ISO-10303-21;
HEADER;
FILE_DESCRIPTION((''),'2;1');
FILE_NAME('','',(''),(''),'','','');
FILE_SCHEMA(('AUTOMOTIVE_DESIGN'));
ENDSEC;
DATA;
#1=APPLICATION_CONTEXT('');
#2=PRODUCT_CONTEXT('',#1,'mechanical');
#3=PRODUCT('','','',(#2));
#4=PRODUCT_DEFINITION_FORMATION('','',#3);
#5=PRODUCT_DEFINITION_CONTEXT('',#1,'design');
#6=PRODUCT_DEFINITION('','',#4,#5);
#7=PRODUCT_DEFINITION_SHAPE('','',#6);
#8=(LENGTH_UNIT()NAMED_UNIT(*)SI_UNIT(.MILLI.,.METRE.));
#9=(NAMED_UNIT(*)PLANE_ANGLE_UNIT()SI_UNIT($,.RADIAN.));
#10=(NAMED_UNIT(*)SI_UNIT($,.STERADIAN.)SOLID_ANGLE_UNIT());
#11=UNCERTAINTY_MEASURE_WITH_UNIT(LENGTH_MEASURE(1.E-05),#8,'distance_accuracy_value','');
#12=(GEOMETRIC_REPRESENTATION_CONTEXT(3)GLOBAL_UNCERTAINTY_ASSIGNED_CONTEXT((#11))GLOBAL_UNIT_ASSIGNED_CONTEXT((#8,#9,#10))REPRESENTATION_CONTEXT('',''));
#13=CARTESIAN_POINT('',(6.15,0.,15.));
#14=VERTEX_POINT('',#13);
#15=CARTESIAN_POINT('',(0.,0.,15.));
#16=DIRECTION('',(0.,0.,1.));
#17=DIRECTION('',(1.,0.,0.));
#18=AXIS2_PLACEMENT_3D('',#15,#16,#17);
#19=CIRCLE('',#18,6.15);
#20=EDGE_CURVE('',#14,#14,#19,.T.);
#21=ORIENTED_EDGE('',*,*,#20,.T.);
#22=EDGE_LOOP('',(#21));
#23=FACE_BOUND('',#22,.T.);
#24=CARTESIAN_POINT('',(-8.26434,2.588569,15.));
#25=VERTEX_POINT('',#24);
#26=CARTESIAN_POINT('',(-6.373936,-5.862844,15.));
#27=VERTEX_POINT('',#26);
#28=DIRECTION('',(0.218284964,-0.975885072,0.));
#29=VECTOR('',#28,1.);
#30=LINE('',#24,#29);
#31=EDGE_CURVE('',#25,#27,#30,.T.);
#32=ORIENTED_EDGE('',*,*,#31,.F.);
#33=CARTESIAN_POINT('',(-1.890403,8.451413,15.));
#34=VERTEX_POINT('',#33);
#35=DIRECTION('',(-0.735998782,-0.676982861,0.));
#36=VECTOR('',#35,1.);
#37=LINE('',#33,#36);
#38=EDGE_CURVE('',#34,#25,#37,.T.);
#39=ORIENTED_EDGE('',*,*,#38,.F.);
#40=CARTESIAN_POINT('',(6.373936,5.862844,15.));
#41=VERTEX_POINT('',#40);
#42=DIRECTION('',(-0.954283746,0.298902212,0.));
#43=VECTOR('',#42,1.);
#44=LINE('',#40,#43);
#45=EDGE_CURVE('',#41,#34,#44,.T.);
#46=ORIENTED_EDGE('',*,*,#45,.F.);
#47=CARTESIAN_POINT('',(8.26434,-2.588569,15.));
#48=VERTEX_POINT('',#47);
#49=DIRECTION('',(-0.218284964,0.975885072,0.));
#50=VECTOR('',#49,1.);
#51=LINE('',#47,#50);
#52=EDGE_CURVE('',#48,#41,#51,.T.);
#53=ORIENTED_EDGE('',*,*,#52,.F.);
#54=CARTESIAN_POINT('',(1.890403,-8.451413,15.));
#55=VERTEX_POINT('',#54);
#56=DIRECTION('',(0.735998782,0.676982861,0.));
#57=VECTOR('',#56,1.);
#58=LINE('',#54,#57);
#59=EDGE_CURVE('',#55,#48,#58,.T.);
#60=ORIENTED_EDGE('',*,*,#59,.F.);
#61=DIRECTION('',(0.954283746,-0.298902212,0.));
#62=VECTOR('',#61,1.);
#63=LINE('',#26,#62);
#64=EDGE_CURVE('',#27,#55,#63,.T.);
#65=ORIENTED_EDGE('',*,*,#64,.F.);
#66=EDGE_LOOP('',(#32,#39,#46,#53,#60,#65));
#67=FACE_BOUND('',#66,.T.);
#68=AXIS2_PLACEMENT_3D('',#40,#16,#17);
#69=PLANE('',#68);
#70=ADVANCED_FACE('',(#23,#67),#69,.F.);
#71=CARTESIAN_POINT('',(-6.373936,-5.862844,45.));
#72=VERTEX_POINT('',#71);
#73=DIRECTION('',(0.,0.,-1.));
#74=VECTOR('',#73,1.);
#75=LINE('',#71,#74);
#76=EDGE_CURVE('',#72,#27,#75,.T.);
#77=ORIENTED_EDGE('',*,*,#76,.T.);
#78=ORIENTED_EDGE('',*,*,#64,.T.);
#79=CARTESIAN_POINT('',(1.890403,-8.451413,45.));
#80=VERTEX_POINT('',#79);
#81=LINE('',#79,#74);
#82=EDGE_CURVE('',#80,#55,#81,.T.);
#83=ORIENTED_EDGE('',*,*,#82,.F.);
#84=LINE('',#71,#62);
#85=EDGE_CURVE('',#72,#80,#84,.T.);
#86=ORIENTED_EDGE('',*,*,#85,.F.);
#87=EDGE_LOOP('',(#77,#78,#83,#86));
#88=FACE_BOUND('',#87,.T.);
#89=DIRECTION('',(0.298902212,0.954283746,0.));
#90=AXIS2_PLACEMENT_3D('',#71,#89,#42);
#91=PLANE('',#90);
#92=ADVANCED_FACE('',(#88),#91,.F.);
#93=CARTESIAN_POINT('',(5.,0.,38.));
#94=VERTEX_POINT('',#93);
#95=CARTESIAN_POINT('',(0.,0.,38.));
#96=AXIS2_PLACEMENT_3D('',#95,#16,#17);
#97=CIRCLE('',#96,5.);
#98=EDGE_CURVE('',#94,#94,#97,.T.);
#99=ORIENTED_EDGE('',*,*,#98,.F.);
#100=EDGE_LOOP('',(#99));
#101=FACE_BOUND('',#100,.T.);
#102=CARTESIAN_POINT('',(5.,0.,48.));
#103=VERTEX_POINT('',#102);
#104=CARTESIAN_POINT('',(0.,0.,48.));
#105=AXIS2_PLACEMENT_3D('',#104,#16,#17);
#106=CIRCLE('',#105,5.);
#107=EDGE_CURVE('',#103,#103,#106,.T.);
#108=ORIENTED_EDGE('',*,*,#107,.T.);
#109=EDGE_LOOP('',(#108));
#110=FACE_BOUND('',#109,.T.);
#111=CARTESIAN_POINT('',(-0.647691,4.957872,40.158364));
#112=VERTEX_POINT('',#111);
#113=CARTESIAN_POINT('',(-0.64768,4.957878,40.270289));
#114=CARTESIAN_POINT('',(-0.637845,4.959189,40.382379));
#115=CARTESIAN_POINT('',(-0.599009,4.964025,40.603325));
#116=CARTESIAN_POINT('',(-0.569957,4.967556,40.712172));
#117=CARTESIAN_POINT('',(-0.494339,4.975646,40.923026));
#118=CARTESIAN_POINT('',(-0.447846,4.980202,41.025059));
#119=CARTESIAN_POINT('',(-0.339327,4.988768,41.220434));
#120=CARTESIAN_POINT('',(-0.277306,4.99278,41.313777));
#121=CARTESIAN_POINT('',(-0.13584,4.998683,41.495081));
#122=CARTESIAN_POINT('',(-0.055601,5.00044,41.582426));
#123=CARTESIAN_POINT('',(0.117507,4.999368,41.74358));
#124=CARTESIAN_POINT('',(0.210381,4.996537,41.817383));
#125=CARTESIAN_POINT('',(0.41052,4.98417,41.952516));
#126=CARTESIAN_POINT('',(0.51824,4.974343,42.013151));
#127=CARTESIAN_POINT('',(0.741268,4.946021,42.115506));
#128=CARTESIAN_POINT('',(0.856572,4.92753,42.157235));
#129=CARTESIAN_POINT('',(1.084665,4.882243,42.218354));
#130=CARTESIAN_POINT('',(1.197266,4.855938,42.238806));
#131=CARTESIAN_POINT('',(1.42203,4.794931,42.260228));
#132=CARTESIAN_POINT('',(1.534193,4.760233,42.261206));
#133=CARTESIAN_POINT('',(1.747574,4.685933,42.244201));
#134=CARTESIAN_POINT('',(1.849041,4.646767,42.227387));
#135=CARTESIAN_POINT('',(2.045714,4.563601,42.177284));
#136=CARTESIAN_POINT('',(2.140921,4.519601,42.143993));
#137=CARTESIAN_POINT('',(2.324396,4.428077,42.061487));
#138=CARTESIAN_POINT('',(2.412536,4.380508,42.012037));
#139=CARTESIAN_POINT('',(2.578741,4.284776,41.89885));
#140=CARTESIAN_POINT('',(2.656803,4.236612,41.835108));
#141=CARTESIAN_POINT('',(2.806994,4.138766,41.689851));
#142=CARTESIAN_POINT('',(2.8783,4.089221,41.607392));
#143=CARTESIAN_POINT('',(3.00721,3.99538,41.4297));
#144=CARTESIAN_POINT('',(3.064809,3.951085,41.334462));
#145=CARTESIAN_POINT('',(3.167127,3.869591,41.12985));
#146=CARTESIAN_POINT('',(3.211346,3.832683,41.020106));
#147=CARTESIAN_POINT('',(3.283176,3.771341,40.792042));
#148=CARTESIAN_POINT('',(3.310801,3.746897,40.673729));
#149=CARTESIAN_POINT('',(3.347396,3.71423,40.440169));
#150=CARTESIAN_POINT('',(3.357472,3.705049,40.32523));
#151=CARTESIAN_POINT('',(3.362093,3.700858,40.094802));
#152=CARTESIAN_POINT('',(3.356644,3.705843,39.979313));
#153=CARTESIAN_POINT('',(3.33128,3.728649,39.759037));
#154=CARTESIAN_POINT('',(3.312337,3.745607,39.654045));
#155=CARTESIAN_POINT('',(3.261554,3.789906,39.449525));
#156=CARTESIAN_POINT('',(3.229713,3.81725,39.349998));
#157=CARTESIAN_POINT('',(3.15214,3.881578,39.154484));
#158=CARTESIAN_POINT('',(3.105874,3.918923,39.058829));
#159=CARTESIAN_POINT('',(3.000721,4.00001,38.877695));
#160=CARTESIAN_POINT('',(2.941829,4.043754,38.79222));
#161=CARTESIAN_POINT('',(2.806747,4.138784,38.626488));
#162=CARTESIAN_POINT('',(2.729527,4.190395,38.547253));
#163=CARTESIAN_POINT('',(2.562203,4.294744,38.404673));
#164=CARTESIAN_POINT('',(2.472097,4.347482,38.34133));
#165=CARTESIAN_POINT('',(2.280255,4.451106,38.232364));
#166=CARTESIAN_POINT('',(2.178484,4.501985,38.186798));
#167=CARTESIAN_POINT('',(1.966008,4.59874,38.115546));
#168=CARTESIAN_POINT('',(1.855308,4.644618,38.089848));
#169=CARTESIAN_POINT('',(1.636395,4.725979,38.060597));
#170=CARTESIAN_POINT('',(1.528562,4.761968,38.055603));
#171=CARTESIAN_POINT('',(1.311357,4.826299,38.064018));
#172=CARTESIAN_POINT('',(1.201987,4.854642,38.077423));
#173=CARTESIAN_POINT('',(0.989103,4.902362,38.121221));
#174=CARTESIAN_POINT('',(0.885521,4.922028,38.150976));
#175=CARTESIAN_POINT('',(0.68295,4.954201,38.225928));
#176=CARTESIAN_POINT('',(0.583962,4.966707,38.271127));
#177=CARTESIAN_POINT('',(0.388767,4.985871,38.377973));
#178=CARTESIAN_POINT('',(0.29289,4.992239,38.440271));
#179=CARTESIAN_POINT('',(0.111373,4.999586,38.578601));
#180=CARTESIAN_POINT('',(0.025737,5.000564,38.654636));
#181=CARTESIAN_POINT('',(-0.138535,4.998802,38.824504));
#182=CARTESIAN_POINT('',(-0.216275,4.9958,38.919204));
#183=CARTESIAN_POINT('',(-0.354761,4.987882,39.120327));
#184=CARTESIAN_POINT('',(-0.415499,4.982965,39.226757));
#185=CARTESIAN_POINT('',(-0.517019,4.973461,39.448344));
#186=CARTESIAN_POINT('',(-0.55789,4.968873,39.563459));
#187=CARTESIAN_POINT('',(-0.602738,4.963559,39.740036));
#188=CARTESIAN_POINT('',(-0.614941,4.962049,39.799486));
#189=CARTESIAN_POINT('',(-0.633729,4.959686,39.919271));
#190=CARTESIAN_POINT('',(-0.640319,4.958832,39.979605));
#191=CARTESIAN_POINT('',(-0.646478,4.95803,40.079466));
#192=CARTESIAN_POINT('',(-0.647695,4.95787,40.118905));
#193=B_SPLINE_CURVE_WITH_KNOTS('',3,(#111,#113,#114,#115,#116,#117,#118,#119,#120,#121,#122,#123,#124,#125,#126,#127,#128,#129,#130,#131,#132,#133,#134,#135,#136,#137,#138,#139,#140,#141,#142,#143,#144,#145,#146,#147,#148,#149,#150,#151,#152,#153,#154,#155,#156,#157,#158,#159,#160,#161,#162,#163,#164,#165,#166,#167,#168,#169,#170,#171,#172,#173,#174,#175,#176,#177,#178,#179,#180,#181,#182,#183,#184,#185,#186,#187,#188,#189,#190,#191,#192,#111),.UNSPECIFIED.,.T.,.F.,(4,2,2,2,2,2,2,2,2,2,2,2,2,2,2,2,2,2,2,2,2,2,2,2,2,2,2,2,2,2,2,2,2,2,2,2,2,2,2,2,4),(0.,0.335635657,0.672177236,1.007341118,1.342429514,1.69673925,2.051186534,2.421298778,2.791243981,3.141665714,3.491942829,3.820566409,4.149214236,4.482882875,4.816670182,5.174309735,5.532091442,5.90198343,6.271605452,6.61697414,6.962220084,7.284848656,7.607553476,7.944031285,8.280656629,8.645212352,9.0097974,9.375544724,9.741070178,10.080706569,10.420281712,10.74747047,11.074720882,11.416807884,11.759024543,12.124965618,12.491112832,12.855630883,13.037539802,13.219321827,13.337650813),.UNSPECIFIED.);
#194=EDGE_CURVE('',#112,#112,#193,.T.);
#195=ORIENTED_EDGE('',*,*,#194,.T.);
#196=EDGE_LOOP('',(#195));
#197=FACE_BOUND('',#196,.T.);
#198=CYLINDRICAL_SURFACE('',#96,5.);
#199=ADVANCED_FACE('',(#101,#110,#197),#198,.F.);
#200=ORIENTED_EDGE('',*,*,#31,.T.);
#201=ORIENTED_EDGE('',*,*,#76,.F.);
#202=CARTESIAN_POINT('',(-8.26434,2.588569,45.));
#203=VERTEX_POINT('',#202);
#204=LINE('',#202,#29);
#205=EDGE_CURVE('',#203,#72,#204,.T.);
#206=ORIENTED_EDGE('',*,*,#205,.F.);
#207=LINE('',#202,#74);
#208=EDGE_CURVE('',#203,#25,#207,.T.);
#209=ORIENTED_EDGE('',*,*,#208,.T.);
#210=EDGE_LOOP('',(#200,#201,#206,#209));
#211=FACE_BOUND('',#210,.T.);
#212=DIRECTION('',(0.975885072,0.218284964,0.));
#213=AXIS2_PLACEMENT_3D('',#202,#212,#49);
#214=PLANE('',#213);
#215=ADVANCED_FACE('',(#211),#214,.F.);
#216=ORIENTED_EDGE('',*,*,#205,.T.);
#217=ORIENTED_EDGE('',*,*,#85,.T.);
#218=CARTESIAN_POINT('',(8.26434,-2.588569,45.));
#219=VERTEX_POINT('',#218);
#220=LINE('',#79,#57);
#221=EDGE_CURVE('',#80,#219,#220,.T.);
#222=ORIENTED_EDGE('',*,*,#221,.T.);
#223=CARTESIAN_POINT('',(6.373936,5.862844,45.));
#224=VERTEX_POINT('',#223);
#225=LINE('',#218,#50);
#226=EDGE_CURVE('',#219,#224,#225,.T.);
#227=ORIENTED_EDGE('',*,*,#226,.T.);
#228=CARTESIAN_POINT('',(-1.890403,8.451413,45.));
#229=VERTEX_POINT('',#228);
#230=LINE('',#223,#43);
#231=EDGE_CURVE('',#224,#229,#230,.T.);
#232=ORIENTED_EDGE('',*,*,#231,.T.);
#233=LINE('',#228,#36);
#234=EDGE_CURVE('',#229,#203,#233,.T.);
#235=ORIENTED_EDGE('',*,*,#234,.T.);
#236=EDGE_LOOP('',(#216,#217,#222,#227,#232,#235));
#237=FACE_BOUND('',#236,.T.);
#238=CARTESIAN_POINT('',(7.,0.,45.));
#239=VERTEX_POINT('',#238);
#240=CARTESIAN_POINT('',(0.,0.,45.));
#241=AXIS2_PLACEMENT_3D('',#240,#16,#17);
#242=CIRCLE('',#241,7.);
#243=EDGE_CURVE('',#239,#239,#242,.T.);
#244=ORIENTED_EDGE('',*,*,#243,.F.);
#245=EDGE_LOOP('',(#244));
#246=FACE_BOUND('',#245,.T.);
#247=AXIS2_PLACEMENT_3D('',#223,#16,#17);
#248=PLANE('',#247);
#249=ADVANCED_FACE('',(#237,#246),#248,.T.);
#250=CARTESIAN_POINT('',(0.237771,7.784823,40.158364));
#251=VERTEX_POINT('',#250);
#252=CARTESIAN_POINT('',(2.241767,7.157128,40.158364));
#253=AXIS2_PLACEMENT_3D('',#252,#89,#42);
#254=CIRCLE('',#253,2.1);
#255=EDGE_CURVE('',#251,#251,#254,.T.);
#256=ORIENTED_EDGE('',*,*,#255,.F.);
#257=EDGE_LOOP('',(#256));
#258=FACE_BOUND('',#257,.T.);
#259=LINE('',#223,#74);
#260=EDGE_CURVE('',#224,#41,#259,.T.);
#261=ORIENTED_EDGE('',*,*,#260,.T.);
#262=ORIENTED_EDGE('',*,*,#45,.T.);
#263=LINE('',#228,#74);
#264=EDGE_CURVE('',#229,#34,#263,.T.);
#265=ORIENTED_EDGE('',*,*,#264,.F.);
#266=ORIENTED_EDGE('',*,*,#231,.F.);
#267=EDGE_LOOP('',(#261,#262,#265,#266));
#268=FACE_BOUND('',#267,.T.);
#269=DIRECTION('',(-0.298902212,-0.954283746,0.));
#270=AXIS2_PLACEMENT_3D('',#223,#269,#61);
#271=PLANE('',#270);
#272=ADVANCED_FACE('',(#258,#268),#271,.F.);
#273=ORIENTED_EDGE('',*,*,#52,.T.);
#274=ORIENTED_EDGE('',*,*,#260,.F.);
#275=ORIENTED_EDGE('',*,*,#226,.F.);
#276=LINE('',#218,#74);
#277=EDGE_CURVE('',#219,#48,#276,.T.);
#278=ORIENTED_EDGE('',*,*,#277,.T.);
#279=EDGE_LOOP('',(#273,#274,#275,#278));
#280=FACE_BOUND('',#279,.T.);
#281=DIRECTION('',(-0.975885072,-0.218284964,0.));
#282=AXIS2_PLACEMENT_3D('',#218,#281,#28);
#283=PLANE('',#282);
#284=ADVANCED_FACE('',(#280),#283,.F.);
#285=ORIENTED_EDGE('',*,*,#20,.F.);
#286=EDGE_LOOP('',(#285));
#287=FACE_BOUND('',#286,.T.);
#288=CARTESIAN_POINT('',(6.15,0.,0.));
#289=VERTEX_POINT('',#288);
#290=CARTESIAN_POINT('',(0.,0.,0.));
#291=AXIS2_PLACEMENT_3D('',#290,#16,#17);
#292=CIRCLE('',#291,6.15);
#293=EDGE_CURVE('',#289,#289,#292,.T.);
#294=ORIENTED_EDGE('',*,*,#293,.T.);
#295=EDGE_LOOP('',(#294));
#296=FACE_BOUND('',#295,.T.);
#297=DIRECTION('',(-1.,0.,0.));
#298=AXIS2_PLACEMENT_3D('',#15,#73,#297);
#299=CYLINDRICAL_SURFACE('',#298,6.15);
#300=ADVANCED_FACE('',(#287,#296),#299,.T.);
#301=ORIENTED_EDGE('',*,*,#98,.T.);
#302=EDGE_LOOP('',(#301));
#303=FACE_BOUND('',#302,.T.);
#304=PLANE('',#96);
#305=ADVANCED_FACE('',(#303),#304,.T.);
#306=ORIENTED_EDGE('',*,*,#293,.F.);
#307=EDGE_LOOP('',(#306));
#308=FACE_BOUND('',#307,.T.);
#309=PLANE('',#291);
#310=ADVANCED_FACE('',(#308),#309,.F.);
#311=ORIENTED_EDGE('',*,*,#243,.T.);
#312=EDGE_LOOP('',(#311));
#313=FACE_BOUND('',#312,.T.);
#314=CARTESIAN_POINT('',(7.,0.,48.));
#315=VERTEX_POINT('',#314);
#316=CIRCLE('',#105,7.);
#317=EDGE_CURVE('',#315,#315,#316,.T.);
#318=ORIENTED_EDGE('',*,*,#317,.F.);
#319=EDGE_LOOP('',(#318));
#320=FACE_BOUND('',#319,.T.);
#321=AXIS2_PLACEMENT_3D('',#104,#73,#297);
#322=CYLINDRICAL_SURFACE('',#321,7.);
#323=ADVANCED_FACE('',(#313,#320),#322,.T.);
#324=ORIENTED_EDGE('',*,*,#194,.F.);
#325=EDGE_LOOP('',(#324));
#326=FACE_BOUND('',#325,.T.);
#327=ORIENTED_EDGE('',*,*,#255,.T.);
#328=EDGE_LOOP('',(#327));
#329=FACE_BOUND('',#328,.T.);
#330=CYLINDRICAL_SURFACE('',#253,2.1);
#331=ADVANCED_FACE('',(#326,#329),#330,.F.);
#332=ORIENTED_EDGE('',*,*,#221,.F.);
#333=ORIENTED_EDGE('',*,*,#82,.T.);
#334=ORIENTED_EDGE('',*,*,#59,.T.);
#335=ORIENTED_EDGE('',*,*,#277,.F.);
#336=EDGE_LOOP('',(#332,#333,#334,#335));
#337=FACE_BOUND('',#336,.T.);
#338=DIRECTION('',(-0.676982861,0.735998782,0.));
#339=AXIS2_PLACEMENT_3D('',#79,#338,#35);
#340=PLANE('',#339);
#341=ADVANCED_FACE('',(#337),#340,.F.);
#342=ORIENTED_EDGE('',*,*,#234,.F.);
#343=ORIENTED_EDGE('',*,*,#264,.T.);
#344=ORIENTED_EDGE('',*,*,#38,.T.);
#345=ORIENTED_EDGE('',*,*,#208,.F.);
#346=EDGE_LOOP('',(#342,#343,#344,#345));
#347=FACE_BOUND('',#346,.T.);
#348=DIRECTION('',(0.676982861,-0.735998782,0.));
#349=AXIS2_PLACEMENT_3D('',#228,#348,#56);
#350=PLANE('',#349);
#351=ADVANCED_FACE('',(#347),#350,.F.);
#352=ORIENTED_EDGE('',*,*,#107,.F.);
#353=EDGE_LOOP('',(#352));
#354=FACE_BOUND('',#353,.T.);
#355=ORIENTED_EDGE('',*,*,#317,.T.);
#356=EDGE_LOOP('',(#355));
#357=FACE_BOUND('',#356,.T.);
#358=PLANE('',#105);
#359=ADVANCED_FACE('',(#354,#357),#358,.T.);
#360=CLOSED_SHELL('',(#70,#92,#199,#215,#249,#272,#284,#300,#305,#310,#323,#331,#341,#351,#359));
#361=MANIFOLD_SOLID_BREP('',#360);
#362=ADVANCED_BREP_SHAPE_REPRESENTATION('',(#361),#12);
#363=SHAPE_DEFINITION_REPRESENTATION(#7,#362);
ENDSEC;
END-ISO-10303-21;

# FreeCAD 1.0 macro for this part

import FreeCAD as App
import Part
import Sketcher
from FreeCAD import Vector


def add_polygon(sketch, points):
    """Adds a closed chain of lines whose ends are joined by coincident constraints."""
    first, n = sketch.GeometryCount, len(points)
    for a, b in zip(points, points[1:] + points[:1]):
        sketch.addGeometry(Part.LineSegment(App.Vector(*a, 0), App.Vector(*b, 0)), False)
    for i in range(n):
        sketch.addConstraint(Sketcher.Constraint("Coincident", first + i, 2, first + (i + 1) % n, 1))

doc = App.newDocument("Part")
body = doc.addObject("PartDesign::Body", "Body")

sketch1 = doc.addObject("Sketcher::SketchObject", "Sketch")
body.addObject(sketch1)
sketch1.AttachmentSupport = (doc.XY_Plane, [""])
sketch1.MapMode = "FlatFace"
sketch1.addGeometry(Part.Circle(Vector(0, 0, 0), Vector(0, 0, 1), 6), False)
sketch1.addConstraint(Sketcher.Constraint("Coincident", 0, 3, -1, 1))
sketch1.addConstraint(Sketcher.Constraint("Diameter", 0, 12.3))
pad1 = doc.addObject("PartDesign::Pad", "Pad")
body.addObject(pad1)
pad1.Profile = sketch1
pad1.Length = 15

sketch2 = doc.addObject("Sketcher::SketchObject", "Sketch001")
body.addObject(sketch2)
sketch2.AttachmentSupport = (doc.XY_Plane, [""])
sketch2.MapMode = "FlatFace"
sketch2.AttachmentOffset = App.Placement(Vector(0, 0, 15), App.Rotation())
add_polygon(sketch2, [(6, 6), (-2, 8), (-8, 3), (-6, -6), (2, -8), (8, -3)])
sketch2.addConstraint(Sketcher.Constraint("Symmetric", 0, 2, 3, 2, -1, 1))
sketch2.addConstraint(Sketcher.Constraint("Symmetric", 1, 2, 4, 2, -1, 1))
sketch2.addConstraint(Sketcher.Constraint("Symmetric", 2, 2, 5, 2, -1, 1))
sketch2.addConstraint(Sketcher.Constraint("Equal", 0, 1))
sketch2.addConstraint(Sketcher.Constraint("Equal", 1, 2))
sketch2.addConstraint(Sketcher.Constraint("DistanceX", 1, 2, -1, 1, 8.26434))
sketch2.addConstraint(Sketcher.Constraint("DistanceY", -1, 1, 1, 2, 2.588569))
sketch2.addConstraint(Sketcher.Constraint("DistanceX", 2, 2, 3, 2, 8.26434))
sketch2.addConstraint(Sketcher.Constraint("DistanceY", 3, 2, 2, 2, 2.588569))
pad2 = doc.addObject("PartDesign::Pad", "Pad001")
body.addObject(pad2)
pad2.Profile = sketch2
pad2.Length = 30

sketch3 = doc.addObject("Sketcher::SketchObject", "Sketch002")
body.addObject(sketch3)
sketch3.AttachmentSupport = (doc.XY_Plane, [""])
sketch3.MapMode = "FlatFace"
sketch3.AttachmentOffset = App.Placement(Vector(0, 0, 45), App.Rotation())
sketch3.addGeometry(Part.Circle(Vector(0, 0, 0), Vector(0, 0, 1), 7), False)
sketch3.addConstraint(Sketcher.Constraint("Coincident", 0, 3, -1, 1))
sketch3.addConstraint(Sketcher.Constraint("Diameter", 0, 14.0))
pad3 = doc.addObject("PartDesign::Pad", "Pad002")
body.addObject(pad3)
pad3.Profile = sketch3
pad3.Length = 3

sketch4 = doc.addObject("Sketcher::SketchObject", "Sketch003")
body.addObject(sketch4)
sketch4.AttachmentSupport = (doc.XY_Plane, [""])
sketch4.MapMode = "FlatFace"
sketch4.AttachmentOffset = App.Placement(Vector(0, 0, 48), App.Rotation())
sketch4.addGeometry(Part.Circle(Vector(0, 0, 0), Vector(0, 0, 1), 5), False)
sketch4.addConstraint(Sketcher.Constraint("Coincident", 0, 3, -1, 1))
sketch4.addConstraint(Sketcher.Constraint("Diameter", 0, 10.0))
pocket1 = doc.addObject("PartDesign::Pocket", "Pocket")
body.addObject(pocket1)
pocket1.Profile = sketch4
pocket1.Length = 10

sketch5 = doc.addObject("Sketcher::SketchObject", "Sketch004")
body.addObject(sketch5)
sketch5.Placement = App.Placement(Vector(2.241767, 7.157128, 0), App.Rotation(Vector(-0.954283746, 0.298902212, 0), Vector(0, 0, 1), Vector(0.298902212, 0.954283746, 0), "ZXY"))
sketch5.addGeometry(Part.Circle(Vector(0, 40.2, 0), Vector(0, 0, 1), 2.1), False)
sketch5.addConstraint(Sketcher.Constraint("PointOnObject", 0, 3, -2))
sketch5.addConstraint(Sketcher.Constraint("Diameter", 0, 4.2))
sketch5.addConstraint(Sketcher.Constraint("DistanceY", -1, 1, 0, 3, 40.158364))
pocket2 = doc.addObject("PartDesign::Pocket", "Pocket001")
body.addObject(pocket2)
pocket2.Profile = sketch5
pocket2.Type = "UpToFirst"

doc.recompute()
